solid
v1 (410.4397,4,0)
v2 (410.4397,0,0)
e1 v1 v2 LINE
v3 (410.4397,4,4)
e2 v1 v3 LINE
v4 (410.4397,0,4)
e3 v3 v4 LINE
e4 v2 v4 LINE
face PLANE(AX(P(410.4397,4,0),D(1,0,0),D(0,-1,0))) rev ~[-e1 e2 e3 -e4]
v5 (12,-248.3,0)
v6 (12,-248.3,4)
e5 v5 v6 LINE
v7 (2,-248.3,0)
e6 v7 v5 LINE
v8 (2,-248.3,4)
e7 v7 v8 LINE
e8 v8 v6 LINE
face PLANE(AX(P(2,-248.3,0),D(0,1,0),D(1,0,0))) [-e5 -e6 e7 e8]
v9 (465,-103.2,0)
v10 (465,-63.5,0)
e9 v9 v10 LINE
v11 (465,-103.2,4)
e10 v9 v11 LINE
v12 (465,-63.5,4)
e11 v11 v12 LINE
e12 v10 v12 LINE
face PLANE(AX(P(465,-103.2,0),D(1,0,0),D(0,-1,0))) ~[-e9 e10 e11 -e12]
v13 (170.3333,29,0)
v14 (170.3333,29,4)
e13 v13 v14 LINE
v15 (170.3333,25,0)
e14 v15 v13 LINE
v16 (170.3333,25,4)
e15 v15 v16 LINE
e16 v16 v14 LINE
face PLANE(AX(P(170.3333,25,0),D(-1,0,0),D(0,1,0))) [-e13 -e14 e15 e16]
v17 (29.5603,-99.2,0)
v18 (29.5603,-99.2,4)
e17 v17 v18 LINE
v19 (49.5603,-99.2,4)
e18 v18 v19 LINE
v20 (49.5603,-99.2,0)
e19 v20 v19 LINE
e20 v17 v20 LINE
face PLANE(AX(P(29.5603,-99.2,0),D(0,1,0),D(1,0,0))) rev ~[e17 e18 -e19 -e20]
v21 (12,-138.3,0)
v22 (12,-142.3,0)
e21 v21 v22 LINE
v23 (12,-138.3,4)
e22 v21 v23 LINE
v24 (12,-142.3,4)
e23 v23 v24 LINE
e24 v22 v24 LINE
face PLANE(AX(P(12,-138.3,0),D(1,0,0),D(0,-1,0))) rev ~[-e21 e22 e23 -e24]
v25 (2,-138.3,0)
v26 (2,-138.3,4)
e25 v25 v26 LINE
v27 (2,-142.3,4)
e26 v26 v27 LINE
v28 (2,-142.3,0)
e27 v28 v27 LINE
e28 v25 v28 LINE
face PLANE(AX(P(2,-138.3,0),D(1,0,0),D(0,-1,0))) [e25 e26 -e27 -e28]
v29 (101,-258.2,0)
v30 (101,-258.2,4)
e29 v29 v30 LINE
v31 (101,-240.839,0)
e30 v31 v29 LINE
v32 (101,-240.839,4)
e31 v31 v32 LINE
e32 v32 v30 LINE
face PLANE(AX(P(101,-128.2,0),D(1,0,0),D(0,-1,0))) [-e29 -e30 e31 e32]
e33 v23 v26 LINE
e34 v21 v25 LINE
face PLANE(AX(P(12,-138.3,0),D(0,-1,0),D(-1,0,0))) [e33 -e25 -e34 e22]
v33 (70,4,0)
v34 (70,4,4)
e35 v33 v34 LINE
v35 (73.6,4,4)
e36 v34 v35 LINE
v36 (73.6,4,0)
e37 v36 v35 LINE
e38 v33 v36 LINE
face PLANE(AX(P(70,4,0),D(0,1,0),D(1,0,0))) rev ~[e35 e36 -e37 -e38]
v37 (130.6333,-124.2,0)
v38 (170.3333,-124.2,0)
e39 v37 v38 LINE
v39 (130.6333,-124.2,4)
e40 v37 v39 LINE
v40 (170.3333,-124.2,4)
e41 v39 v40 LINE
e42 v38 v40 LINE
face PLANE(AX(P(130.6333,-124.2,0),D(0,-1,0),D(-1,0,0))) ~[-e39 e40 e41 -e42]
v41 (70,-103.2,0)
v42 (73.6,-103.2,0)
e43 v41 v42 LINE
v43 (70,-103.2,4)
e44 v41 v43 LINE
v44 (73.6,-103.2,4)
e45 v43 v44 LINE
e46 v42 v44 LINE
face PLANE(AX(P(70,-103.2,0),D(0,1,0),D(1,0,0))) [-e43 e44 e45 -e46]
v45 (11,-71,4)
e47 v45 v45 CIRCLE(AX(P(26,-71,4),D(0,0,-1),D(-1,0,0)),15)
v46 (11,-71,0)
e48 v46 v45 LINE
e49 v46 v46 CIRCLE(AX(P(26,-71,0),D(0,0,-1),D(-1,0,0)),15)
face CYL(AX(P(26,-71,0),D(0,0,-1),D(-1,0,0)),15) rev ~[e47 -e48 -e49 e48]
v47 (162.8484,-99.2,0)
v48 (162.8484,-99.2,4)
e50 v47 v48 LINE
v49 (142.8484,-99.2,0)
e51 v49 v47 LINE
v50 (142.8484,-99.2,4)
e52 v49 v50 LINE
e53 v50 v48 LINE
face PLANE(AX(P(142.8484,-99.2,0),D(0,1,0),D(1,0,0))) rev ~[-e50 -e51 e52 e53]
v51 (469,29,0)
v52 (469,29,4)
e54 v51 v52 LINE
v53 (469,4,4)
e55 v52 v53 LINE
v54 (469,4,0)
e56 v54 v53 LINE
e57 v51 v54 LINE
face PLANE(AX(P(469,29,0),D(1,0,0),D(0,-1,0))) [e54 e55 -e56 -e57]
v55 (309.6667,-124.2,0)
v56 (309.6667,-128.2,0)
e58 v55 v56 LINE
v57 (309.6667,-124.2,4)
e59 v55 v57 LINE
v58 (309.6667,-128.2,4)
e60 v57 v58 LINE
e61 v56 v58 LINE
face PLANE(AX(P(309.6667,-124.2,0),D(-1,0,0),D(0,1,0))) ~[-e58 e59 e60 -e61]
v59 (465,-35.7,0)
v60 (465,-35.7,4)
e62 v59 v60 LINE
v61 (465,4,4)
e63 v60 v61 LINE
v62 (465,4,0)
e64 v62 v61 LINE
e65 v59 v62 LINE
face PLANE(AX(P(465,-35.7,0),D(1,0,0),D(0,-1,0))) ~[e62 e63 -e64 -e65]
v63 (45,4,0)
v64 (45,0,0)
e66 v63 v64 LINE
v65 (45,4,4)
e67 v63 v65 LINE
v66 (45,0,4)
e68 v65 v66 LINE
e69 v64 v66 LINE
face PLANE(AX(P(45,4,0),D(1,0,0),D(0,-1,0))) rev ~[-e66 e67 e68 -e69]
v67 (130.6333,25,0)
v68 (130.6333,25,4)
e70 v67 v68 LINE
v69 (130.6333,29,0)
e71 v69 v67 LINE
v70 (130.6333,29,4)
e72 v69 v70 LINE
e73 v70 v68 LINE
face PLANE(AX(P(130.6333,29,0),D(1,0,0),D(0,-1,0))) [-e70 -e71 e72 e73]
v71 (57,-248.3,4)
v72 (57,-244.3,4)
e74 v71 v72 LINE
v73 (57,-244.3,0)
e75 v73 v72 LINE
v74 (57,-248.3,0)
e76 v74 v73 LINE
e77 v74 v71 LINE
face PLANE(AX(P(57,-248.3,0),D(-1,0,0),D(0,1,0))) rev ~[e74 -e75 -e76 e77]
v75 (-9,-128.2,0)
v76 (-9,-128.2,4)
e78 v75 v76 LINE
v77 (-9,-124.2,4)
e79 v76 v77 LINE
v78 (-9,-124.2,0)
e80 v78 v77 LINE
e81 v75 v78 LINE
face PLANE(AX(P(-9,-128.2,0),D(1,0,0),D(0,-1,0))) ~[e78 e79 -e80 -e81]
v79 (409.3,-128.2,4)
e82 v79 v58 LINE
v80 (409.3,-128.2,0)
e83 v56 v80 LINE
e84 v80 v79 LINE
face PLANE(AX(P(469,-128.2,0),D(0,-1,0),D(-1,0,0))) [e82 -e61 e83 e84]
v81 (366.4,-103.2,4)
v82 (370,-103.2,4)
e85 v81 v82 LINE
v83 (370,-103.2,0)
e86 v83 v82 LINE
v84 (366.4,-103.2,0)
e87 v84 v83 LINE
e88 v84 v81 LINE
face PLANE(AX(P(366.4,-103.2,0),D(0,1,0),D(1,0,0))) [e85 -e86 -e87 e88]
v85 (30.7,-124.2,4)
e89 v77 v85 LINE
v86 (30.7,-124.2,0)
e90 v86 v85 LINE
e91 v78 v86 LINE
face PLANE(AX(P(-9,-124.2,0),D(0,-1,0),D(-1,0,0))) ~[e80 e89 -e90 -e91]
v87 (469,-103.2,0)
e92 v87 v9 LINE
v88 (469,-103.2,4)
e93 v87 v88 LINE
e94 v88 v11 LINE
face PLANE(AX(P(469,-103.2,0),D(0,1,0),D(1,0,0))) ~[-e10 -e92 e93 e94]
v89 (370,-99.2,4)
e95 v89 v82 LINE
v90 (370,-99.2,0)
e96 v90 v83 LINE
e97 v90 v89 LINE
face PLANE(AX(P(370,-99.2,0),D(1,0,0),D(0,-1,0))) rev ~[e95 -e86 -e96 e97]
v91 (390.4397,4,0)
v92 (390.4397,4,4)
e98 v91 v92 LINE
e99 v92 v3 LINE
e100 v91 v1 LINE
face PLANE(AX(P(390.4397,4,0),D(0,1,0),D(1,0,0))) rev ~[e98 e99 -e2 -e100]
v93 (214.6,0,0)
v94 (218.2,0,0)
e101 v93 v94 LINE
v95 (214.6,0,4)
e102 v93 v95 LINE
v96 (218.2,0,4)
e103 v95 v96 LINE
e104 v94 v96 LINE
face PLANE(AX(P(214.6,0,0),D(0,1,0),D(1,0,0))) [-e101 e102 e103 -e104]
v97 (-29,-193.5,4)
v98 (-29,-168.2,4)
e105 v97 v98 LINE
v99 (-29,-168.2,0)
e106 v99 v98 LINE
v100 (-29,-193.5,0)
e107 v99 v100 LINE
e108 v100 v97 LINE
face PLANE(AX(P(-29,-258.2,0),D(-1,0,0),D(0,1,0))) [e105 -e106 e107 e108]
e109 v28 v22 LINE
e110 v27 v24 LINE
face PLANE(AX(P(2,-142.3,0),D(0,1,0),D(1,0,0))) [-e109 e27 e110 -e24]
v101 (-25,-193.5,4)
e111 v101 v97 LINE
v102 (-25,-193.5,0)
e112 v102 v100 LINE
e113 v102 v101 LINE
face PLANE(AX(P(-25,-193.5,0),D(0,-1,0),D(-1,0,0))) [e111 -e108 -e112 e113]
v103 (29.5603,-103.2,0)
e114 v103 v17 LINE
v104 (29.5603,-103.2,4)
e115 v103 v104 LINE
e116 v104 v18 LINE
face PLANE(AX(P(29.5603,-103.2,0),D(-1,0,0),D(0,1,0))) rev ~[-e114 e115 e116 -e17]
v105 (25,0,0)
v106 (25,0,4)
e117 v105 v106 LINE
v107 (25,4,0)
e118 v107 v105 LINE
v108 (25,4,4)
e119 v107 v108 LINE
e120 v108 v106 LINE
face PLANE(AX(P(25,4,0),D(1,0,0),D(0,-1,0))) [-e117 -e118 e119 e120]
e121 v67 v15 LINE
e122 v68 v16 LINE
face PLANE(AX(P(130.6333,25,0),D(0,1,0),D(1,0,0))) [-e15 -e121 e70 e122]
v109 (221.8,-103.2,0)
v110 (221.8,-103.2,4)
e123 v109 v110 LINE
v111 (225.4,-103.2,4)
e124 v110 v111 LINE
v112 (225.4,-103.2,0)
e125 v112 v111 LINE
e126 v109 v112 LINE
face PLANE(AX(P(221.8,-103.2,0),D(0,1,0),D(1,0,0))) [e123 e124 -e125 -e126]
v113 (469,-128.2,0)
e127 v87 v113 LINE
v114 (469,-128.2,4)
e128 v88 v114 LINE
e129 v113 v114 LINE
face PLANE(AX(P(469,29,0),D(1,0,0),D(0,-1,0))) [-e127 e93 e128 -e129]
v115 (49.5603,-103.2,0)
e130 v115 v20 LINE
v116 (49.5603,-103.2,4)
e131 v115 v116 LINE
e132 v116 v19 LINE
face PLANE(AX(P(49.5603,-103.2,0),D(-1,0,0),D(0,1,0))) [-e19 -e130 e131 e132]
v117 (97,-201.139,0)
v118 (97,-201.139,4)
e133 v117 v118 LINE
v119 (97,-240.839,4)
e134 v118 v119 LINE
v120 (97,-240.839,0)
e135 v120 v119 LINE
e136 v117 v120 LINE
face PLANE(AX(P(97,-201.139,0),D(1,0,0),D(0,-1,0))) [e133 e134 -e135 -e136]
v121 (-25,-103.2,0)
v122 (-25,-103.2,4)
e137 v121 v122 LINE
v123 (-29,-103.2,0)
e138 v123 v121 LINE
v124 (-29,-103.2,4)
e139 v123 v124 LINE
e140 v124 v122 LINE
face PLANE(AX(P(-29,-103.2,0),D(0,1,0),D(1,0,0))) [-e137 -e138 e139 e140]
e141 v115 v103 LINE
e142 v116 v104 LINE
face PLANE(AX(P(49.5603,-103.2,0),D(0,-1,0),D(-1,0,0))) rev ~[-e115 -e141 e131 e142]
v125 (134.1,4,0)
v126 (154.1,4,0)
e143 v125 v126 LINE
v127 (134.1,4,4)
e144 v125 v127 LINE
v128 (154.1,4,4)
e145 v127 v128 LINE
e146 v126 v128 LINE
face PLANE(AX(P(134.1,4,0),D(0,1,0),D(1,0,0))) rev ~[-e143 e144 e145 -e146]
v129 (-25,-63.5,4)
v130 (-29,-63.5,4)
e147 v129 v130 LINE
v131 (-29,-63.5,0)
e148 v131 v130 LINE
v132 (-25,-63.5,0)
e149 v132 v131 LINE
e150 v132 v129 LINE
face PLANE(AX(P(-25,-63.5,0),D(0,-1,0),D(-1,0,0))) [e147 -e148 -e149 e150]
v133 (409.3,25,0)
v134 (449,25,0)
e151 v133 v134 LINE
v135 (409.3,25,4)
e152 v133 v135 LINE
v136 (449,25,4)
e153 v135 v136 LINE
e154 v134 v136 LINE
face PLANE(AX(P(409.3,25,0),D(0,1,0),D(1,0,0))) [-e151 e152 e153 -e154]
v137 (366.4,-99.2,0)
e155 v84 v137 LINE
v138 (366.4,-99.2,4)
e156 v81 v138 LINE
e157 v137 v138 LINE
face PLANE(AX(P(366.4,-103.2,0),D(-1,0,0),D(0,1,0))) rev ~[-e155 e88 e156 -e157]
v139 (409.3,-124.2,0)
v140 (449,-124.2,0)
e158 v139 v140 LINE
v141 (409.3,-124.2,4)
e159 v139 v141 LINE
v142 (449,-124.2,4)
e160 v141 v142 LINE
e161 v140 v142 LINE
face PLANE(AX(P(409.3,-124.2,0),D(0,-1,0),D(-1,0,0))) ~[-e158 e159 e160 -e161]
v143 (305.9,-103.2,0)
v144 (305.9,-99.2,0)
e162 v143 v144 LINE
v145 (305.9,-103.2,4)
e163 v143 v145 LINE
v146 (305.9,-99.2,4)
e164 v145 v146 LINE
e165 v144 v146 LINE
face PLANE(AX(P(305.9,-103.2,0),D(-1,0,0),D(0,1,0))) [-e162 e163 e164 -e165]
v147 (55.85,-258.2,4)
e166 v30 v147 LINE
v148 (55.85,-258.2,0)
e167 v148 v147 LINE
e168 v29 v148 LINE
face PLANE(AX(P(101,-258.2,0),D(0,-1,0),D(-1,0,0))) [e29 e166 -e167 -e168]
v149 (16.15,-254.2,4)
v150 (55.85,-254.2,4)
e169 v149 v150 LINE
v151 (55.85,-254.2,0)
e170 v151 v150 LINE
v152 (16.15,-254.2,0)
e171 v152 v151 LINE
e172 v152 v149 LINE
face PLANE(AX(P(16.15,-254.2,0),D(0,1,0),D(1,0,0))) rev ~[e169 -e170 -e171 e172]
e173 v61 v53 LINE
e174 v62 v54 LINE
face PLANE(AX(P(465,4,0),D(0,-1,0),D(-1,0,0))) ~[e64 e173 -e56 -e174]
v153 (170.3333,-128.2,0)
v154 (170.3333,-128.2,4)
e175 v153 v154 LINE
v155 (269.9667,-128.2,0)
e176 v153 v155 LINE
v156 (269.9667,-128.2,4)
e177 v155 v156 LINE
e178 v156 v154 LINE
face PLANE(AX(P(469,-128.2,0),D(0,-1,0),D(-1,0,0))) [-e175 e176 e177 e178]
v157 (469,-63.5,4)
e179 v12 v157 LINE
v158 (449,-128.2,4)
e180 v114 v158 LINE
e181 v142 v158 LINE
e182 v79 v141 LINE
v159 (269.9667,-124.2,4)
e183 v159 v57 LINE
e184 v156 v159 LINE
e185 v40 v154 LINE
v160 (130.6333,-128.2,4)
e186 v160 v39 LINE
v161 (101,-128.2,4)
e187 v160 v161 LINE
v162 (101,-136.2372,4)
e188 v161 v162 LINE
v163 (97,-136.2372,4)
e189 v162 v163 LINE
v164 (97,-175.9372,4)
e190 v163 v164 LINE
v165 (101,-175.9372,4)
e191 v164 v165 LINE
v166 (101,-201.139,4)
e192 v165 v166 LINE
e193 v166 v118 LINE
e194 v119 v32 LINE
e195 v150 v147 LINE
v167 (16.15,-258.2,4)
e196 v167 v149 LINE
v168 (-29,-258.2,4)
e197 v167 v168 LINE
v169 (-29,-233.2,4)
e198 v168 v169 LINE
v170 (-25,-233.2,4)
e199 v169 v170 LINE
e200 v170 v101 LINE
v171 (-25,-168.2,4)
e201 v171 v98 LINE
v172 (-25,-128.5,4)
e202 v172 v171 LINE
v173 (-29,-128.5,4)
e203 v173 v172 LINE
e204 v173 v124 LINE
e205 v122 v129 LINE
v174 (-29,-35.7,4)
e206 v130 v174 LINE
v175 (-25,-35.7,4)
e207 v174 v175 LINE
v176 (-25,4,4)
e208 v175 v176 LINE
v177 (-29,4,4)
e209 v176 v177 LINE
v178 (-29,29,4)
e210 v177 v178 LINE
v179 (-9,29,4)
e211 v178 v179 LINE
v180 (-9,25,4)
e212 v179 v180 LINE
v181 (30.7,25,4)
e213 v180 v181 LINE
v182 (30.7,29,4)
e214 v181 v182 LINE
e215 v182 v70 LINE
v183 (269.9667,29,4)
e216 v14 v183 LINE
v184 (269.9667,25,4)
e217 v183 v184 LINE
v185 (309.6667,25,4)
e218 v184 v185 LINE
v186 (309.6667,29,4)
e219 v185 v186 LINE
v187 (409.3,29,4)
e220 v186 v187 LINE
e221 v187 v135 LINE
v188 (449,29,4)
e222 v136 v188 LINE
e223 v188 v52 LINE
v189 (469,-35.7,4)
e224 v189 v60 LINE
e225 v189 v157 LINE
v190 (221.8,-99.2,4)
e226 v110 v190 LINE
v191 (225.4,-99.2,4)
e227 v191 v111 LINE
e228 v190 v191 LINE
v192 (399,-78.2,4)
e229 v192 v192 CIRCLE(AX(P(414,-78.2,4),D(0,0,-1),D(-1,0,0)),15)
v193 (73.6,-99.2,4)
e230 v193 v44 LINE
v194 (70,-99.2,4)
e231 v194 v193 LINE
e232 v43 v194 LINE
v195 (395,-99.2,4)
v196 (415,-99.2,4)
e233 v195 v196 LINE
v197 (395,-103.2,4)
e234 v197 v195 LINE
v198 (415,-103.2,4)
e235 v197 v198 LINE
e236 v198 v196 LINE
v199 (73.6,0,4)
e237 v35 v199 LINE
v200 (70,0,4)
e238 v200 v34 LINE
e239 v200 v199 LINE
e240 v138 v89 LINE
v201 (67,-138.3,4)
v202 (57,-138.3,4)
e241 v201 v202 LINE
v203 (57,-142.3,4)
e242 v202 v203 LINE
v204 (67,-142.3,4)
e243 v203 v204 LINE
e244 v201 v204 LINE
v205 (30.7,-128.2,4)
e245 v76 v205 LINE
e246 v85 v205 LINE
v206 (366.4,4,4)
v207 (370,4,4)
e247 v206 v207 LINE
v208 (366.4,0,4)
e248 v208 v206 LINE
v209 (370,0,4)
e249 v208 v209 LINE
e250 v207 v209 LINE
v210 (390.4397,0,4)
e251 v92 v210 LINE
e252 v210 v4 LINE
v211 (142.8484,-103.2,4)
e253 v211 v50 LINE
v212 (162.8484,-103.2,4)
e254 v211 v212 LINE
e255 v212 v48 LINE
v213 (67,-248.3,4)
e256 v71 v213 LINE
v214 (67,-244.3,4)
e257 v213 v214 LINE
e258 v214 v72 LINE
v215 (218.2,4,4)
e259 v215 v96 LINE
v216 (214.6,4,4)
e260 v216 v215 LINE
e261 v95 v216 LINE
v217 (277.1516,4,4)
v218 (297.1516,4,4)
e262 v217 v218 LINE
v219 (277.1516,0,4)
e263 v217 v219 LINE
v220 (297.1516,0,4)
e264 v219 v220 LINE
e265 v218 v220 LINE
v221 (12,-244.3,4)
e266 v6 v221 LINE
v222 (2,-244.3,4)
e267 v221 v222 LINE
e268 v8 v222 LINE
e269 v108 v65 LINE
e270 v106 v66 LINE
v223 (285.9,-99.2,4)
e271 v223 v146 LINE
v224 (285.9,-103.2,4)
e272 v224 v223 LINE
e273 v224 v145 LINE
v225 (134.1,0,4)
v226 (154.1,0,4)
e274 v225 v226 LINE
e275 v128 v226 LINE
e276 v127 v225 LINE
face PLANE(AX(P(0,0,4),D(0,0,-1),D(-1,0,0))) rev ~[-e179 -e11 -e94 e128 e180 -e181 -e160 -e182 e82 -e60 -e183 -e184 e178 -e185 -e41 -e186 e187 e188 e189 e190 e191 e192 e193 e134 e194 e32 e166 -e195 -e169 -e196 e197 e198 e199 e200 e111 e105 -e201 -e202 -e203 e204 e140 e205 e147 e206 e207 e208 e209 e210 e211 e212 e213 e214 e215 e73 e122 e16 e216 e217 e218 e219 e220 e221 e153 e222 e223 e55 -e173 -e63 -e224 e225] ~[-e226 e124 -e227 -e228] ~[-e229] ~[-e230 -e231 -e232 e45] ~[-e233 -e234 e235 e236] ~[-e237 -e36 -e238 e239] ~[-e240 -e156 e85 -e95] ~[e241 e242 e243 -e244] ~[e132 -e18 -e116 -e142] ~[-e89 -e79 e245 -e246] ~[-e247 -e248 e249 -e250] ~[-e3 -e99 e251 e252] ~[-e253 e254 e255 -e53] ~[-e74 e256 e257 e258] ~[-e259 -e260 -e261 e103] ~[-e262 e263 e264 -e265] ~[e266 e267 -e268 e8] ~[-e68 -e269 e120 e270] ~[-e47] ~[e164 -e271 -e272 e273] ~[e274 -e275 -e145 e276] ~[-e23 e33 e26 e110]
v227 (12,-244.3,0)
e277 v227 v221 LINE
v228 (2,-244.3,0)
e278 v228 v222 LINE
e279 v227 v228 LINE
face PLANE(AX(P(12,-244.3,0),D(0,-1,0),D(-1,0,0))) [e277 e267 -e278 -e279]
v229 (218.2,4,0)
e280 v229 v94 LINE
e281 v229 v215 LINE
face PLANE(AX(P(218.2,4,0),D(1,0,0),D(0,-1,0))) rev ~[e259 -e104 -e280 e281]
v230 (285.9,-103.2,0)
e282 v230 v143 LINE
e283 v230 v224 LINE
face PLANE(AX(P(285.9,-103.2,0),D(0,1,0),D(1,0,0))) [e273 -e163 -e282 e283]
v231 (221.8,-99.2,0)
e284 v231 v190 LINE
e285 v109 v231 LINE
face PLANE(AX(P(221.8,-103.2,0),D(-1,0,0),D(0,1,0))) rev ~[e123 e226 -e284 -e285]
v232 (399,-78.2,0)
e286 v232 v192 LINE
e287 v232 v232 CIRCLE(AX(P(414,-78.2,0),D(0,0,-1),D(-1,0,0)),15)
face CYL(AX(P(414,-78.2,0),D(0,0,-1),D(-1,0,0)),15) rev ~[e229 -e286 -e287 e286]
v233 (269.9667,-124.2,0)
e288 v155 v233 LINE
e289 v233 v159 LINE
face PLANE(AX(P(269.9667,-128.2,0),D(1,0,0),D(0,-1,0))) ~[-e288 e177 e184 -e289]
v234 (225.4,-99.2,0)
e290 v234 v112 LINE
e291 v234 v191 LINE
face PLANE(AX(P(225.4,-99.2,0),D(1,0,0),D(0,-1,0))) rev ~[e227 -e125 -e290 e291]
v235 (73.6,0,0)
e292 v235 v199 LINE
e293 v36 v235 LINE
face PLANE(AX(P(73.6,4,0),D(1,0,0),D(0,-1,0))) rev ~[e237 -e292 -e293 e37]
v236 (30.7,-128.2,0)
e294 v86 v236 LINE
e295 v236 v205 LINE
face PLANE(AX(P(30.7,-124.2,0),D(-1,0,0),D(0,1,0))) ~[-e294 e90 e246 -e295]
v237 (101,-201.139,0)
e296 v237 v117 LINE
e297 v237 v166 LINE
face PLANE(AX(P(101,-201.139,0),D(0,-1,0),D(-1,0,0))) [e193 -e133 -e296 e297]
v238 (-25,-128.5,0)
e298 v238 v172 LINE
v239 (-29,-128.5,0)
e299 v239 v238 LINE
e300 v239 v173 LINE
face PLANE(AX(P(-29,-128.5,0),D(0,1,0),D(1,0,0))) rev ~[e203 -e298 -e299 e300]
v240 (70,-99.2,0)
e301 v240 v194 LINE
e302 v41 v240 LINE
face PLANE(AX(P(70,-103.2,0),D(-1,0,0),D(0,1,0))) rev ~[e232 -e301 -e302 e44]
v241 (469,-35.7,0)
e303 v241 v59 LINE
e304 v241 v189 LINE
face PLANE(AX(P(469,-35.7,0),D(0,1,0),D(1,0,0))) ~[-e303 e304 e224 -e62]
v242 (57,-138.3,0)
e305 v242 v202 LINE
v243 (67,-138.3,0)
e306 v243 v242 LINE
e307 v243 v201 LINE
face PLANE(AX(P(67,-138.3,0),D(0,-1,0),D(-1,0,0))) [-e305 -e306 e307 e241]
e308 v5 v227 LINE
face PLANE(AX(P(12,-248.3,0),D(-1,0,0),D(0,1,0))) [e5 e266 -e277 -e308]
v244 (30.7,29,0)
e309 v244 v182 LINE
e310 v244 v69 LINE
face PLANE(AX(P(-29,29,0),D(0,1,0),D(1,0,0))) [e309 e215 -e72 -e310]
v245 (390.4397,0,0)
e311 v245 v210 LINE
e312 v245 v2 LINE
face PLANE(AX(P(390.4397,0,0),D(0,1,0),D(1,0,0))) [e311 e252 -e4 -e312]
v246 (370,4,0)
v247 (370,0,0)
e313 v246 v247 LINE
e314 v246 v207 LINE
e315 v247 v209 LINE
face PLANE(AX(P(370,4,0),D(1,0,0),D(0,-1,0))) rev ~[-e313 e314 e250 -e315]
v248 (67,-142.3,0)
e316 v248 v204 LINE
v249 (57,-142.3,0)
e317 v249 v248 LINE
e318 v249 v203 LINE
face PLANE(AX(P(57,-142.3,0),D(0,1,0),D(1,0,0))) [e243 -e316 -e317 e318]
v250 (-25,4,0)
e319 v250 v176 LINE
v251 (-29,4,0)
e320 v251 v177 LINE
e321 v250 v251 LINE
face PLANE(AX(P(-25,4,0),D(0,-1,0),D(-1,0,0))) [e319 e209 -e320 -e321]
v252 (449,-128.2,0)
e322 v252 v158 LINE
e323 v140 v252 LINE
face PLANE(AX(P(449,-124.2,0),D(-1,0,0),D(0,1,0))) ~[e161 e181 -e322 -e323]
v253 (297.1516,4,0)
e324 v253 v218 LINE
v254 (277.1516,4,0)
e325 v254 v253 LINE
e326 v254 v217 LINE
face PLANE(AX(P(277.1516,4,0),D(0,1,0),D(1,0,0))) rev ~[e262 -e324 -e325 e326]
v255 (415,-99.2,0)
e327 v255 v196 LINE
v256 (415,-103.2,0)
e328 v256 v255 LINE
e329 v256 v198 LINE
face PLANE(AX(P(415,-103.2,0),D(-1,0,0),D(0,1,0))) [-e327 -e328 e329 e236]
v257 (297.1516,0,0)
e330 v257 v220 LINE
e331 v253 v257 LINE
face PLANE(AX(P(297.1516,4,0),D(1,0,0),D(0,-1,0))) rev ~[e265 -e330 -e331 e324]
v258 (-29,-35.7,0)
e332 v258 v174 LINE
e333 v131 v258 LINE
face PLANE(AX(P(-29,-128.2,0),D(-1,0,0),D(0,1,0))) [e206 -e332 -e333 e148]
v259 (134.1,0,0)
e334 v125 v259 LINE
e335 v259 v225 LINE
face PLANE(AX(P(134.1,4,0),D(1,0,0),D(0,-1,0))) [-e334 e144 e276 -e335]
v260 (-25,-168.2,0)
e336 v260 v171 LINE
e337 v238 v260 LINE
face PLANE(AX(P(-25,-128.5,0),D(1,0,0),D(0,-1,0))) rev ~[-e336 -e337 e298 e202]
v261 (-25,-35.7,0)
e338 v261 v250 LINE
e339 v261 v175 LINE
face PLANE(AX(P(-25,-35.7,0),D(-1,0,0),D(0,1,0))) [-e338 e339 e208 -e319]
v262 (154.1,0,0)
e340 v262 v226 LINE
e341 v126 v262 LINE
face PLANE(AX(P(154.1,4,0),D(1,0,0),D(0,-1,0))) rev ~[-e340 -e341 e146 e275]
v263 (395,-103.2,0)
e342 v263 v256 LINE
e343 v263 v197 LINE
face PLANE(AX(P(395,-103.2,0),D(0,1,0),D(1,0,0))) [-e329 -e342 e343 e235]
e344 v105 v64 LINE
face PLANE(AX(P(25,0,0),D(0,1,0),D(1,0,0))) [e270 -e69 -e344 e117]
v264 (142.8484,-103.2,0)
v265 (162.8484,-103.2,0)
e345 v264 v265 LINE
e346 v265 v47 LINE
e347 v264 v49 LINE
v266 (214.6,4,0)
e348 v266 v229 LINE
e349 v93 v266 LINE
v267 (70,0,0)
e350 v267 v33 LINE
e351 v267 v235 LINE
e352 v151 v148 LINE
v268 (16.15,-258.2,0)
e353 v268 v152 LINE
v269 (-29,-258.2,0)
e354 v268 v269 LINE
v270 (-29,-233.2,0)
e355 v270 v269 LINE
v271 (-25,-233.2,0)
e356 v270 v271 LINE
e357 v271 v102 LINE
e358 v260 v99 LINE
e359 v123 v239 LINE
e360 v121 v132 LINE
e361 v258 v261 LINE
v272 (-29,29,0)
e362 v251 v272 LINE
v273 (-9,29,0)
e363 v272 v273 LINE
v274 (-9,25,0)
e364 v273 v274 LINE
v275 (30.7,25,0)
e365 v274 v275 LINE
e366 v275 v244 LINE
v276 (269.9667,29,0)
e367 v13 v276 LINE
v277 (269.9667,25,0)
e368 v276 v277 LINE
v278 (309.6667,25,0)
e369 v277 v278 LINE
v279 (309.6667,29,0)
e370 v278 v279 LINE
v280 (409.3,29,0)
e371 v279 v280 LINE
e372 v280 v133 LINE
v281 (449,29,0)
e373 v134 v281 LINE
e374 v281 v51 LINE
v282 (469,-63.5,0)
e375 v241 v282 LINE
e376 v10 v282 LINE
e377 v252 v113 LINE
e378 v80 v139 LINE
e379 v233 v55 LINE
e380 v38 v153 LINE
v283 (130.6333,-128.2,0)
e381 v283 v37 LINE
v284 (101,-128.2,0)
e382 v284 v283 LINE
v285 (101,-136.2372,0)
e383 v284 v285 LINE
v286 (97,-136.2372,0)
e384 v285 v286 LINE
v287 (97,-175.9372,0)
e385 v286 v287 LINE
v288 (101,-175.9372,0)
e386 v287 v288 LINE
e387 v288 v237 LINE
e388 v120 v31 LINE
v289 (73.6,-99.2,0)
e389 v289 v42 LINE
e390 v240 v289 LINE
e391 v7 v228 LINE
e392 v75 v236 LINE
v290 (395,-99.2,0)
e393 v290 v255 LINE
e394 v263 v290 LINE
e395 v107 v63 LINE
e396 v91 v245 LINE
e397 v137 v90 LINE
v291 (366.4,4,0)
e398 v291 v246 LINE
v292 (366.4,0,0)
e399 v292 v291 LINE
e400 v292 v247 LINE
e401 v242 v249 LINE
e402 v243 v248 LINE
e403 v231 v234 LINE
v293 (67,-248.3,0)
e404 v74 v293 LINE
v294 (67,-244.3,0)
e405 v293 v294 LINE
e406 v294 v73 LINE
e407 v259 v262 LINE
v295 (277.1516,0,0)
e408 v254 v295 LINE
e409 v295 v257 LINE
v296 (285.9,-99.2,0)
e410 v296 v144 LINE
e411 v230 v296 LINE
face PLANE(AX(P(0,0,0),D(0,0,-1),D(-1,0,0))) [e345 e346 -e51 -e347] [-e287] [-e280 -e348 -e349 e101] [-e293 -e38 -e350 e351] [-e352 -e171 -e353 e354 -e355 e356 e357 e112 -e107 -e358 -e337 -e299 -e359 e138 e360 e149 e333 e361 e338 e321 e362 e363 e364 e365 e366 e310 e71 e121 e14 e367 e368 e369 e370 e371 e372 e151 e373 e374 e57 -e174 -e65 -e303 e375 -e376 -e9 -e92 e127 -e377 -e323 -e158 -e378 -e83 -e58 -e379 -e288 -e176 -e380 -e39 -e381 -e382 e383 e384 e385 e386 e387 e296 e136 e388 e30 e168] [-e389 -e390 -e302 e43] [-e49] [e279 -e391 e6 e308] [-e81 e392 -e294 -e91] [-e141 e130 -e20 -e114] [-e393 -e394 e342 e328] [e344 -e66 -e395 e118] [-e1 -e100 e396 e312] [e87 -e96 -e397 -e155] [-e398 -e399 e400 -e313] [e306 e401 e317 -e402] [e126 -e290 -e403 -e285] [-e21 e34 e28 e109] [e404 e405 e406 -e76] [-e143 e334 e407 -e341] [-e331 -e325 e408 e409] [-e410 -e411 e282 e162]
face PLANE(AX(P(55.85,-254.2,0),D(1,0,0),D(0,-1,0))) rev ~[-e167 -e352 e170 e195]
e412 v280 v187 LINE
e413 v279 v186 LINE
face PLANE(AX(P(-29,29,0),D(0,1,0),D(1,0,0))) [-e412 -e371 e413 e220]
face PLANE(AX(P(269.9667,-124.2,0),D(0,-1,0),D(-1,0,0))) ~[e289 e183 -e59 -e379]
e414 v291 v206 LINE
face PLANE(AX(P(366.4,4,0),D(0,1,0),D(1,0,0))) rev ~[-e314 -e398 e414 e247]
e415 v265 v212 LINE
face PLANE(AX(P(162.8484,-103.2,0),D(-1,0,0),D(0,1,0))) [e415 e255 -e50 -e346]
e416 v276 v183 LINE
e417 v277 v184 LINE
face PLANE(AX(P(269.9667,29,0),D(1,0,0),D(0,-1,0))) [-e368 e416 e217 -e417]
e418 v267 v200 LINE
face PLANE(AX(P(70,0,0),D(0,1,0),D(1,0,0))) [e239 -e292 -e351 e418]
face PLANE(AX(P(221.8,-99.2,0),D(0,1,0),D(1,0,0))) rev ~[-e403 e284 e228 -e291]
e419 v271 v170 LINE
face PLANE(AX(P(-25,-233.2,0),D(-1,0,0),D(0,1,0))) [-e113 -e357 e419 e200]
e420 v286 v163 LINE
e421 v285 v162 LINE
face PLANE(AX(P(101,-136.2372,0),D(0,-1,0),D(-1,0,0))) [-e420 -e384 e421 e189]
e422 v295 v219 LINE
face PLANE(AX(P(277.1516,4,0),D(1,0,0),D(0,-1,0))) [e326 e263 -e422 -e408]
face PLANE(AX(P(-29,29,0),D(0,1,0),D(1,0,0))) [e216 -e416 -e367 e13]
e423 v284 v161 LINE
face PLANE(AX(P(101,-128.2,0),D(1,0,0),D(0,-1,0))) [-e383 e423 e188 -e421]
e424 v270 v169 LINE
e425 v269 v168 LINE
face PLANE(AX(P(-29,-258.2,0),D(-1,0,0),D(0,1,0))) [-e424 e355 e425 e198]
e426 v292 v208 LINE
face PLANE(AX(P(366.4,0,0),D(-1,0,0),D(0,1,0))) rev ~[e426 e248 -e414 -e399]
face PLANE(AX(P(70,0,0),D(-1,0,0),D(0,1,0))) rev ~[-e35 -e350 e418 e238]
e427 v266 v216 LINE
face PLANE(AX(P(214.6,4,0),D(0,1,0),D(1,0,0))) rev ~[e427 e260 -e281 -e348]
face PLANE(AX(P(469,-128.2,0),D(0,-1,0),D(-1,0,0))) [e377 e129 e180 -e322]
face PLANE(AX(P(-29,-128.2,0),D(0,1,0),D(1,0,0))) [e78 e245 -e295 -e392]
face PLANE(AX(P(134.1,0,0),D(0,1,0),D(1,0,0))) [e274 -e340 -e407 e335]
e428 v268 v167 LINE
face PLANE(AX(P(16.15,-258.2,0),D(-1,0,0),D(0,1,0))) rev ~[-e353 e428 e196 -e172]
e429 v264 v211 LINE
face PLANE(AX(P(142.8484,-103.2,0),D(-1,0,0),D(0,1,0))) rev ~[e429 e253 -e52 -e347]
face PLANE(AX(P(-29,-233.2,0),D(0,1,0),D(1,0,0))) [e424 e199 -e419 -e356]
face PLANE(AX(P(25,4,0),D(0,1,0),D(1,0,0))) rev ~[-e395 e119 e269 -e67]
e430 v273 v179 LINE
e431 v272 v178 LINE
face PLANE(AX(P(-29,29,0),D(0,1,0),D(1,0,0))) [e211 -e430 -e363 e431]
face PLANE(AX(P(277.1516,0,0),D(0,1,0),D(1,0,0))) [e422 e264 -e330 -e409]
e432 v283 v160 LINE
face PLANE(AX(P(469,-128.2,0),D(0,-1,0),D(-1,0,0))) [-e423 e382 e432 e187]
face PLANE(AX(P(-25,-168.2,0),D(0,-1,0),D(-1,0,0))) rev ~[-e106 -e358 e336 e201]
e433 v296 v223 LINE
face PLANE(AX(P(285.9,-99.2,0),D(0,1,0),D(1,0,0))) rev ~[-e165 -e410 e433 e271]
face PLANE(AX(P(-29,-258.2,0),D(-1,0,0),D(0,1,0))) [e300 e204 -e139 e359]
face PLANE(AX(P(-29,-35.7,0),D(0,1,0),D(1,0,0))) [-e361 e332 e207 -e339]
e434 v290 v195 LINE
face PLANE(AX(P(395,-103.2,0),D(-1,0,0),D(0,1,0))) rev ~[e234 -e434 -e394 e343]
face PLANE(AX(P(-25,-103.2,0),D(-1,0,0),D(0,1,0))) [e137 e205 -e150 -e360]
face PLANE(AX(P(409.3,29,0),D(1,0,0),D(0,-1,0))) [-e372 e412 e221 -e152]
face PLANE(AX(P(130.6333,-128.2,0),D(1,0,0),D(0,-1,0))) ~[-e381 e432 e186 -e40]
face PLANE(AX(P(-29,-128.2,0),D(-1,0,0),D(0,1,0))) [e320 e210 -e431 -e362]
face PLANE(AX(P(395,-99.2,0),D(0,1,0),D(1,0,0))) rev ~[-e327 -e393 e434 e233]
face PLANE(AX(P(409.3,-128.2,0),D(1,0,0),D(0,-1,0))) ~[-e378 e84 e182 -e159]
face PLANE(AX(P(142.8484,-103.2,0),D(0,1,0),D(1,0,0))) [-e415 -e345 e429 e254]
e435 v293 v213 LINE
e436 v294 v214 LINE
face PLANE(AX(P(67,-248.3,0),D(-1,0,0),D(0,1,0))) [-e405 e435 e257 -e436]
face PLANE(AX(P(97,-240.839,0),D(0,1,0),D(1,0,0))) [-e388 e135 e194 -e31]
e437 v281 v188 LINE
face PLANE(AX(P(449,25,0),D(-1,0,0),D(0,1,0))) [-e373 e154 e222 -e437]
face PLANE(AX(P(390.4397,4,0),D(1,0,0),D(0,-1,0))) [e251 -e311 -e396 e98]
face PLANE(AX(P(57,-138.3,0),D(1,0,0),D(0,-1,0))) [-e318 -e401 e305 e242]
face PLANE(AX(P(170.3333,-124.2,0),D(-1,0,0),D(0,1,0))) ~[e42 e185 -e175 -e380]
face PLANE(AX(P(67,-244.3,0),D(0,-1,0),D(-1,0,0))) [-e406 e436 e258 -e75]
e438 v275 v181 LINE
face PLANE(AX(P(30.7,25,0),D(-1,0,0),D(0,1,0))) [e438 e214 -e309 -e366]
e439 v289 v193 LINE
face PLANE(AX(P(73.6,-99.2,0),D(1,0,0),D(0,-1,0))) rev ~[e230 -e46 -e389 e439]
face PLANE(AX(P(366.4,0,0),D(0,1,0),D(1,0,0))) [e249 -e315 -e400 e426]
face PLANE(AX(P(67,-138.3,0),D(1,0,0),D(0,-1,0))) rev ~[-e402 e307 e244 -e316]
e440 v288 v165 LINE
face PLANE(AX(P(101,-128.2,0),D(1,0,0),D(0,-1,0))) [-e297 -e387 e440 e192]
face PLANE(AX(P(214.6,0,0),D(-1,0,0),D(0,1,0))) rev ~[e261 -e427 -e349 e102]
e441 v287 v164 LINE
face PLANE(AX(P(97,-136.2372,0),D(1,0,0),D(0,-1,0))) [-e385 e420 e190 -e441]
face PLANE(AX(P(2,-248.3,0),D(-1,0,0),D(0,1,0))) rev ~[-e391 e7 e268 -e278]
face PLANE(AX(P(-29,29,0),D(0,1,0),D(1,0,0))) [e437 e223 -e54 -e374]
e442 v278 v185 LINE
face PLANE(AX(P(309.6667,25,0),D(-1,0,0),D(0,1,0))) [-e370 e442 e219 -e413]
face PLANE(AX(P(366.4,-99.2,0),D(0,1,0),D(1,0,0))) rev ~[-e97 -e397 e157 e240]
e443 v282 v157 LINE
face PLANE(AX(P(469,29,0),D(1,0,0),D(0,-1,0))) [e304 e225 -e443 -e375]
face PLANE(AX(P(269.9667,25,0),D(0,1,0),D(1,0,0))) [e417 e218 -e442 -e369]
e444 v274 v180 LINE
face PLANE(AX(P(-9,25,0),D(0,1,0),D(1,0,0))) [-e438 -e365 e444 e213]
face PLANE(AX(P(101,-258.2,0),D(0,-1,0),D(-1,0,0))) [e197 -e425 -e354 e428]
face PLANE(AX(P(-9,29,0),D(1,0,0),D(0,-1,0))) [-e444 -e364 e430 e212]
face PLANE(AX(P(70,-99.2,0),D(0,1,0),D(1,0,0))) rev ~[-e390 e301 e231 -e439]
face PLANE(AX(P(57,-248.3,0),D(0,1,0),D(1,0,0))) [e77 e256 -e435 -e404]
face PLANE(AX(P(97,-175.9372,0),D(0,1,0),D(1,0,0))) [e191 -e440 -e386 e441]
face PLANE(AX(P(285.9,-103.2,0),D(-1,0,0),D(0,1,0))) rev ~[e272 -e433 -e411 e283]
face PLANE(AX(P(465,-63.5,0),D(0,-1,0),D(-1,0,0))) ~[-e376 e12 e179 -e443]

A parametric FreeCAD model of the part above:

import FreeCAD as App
import Part
import Sketcher

V = App.Vector
Q = App.Units.Quantity


def add_polygon(sketch, points):
    """Adds a closed chain of lines whose ends are joined by coincident constraints."""
    first, n = sketch.GeometryCount, len(points)
    for a, b in zip(points, points[1:] + points[:1]):
        sketch.addGeometry(Part.LineSegment(App.Vector(*a, 0), App.Vector(*b, 0)), False)
    for i in range(n):
        sketch.addConstraint(Sketcher.Constraint("Coincident", first + i, 2, first + (i + 1) % n, 1))

doc = App.newDocument("Part")
body = doc.addObject("PartDesign::Body", "Body")

sketch1 = body.newObject("Sketcher::SketchObject", "Sketch")
sketch1.AttachmentSupport = (doc.getObject("XY_Plane"), [""])
sketch1.MapMode = "FlatFace"
add_polygon(sketch1, [(469, -128.2), (469, 29), (-29, 29), (-29, -128.2)])
add_polygon(sketch1, [(29.5603, -103.2), (29.5603, -99.2), (49.5603, -99.2), (49.5603, -103.2)])
add_polygon(sketch1, [(73.6, -103.2), (70, -103.2), (70, -99.2), (73.6, -99.2)])
add_polygon(sketch1, [(162.8484, -99.2), (162.8484, -103.2), (142.8484, -103.2), (142.8484, -99.2)])
add_polygon(sketch1, [(225.4, -103.2), (221.8, -103.2), (221.8, -99.2), (225.4, -99.2)])
add_polygon(sketch1, [(305.9, -99.2), (305.9, -103.2), (285.9, -103.2), (285.9, -99.2)])
add_polygon(sketch1, [(366.4, -99.2), (370, -99.2), (370, -103.2), (366.4, -103.2)])
add_polygon(sketch1, [(415, -103.2), (395, -103.2), (395, -99.2), (415, -99.2)])
add_polygon(sketch1, [(25, 0), (25, 4), (45, 4), (45, 0)])
add_polygon(sketch1, [(73.6, 0), (70, 0), (70, 4), (73.6, 4)])
add_polygon(sketch1, [(134.1, 0), (134.1, 4), (154.1, 4), (154.1, 0)])
add_polygon(sketch1, [(218.2, 0), (214.6, 0), (214.6, 4), (218.2, 4)])
add_polygon(sketch1, [(277.1516, 0), (277.1516, 4), (297.1516, 4), (297.1516, 0)])
add_polygon(sketch1, [(370, 0), (366.4, 0), (366.4, 4), (370, 4)])
add_polygon(sketch1, [(390.4397, 0), (390.4397, 4), (410.4397, 4), (410.4397, 0)])
sketch1.addConstraint([
    Sketcher.Constraint("Vertical", 0),
    Sketcher.Constraint("Horizontal", 1),
    Sketcher.Constraint("Vertical", 2),
    Sketcher.Constraint("Horizontal", 3),
    Sketcher.Constraint("Vertical", 4),
    Sketcher.Constraint("Horizontal", 5),
    Sketcher.Constraint("Vertical", 6),
    Sketcher.Constraint("Horizontal", 7),
    Sketcher.Constraint("Horizontal", 8),
    Sketcher.Constraint("Vertical", 9),
    Sketcher.Constraint("Horizontal", 10),
    Sketcher.Constraint("Vertical", 11),
    Sketcher.Constraint("Vertical", 12),
    Sketcher.Constraint("Horizontal", 13),
    Sketcher.Constraint("Vertical", 14),
    Sketcher.Constraint("Horizontal", 15),
    Sketcher.Constraint("Horizontal", 16),
    Sketcher.Constraint("Vertical", 17),
    Sketcher.Constraint("Horizontal", 18),
    Sketcher.Constraint("Vertical", 19),
    Sketcher.Constraint("Vertical", 20),
    Sketcher.Constraint("Horizontal", 21),
    Sketcher.Constraint("Vertical", 22),
    Sketcher.Constraint("Horizontal", 23),
    Sketcher.Constraint("Horizontal", 24),
    Sketcher.Constraint("Vertical", 25),
    Sketcher.Constraint("Horizontal", 26),
    Sketcher.Constraint("Vertical", 27),
    Sketcher.Constraint("Horizontal", 28),
    Sketcher.Constraint("Vertical", 29),
    Sketcher.Constraint("Horizontal", 30),
    Sketcher.Constraint("Vertical", 31),
    Sketcher.Constraint("Vertical", 32),
    Sketcher.Constraint("Horizontal", 33),
    Sketcher.Constraint("Vertical", 34),
    Sketcher.Constraint("Horizontal", 35),
    Sketcher.Constraint("Horizontal", 36),
    Sketcher.Constraint("Vertical", 37),
    Sketcher.Constraint("Horizontal", 38),
    Sketcher.Constraint("Vertical", 39),
    Sketcher.Constraint("Vertical", 40),
    Sketcher.Constraint("Horizontal", 41),
    Sketcher.Constraint("Vertical", 42),
    Sketcher.Constraint("Horizontal", 43),
    Sketcher.Constraint("Horizontal", 44),
    Sketcher.Constraint("Vertical", 45),
    Sketcher.Constraint("Horizontal", 46),
    Sketcher.Constraint("Vertical", 47),
    Sketcher.Constraint("Vertical", 48),
    Sketcher.Constraint("Horizontal", 49),
    Sketcher.Constraint("Vertical", 50),
    Sketcher.Constraint("Horizontal", 51),
    Sketcher.Constraint("Horizontal", 52),
    Sketcher.Constraint("Vertical", 53),
    Sketcher.Constraint("Horizontal", 54),
    Sketcher.Constraint("Vertical", 55),
    Sketcher.Constraint("Vertical", 56),
    Sketcher.Constraint("Horizontal", 57),
    Sketcher.Constraint("Vertical", 58),
    Sketcher.Constraint("Horizontal", 59),
    Sketcher.Constraint("PointOnObject", 34, 2, -1),
    Sketcher.Constraint("PointOnObject", 36, 2, -1),
    Sketcher.Constraint("PointOnObject", 42, 2, -1),
    Sketcher.Constraint("PointOnObject", 44, 2, -1),
    Sketcher.Constraint("PointOnObject", 50, 2, -1),
    Sketcher.Constraint("PointOnObject", 52, 2, -1),
    Sketcher.Constraint("PointOnObject", 58, 2, -1),
    Sketcher.Constraint("Horizontal", 7, 2, 8, 2),
    Sketcher.Constraint("Horizontal", 5, 2, 9, 2),
    Sketcher.Constraint("Horizontal", 11, 2, 12, 2),
    Sketcher.Constraint("Horizontal", 10, 2, 14, 2),
    Sketcher.Constraint("Horizontal", 13, 2, 16, 2),
    Sketcher.Constraint("Horizontal", 15, 2, 17, 2),
    Sketcher.Constraint("Horizontal", 19, 2, 20, 2),
    Sketcher.Constraint("Horizontal", 18, 2, 22, 2),
    Sketcher.Constraint("Horizontal", 23, 2, 24, 2),
    Sketcher.Constraint("Horizontal", 21, 2, 25, 2),
    Sketcher.Constraint("Horizontal", 26, 2, 28, 2),
    Sketcher.Constraint("Horizontal", 27, 2, 29, 2),
    Sketcher.Constraint("Horizontal", 33, 2, 37, 2),
    Sketcher.Constraint("Horizontal", 38, 2, 40, 2),
    Sketcher.Constraint("Horizontal", 41, 2, 45, 2),
    Sketcher.Constraint("Horizontal", 46, 2, 48, 2),
    Sketcher.Constraint("Horizontal", 49, 2, 53, 2),
    Sketcher.Constraint("Horizontal", 54, 2, 56, 2),
    Sketcher.Constraint("Vertical", 9, 2, 36, 2),
    Sketcher.Constraint("Vertical", 11, 2, 38, 2),
    Sketcher.Constraint("Vertical", 27, 2, 52, 2),
    Sketcher.Constraint("Vertical", 25, 2, 54, 2),
    Sketcher.Constraint("Equal", 7, 13),
    Sketcher.Constraint("Equal", 10, 16),
    Sketcher.Constraint("Equal", 15, 21),
    Sketcher.Constraint("Equal", 18, 24),
    Sketcher.Constraint("Equal", 23, 28),
    Sketcher.Constraint("Equal", 30, 33),
    Sketcher.Constraint("Equal", 35, 41),
    Sketcher.Constraint("Equal", 38, 44),
    Sketcher.Constraint("Equal", 43, 49),
    Sketcher.Constraint("Equal", 51, 57),
    Sketcher.Constraint("Equal", 31, 32),
    Sketcher.Constraint("DistanceX", 1, 2, 1, 1, Q("498 mm")),
    Sketcher.Constraint("DistanceX", 5, 1, 5, 2, Q("20 mm")),
    Sketcher.Constraint("DistanceY", 4, 1, 4, 2, Q("4 mm")),
    Sketcher.Constraint("DistanceX", 8, 2, 8, 1, Q("3.6 mm")),
    Sketcher.Constraint("DistanceY", 0, 1, 0, 2, Q("157.2 mm")),
    Sketcher.Constraint("DistanceX", -1, 1, 0, 2, Q("469 mm")),
    Sketcher.Constraint("DistanceY", -1, 1, 0, 2, Q("29 mm")),
    Sketcher.Constraint("DistanceX", -1, 1, 8, 2, Q("70 mm")),
    Sketcher.Constraint("DistanceX", -1, 1, 24, 2, Q("370 mm")),
    Sketcher.Constraint("DistanceX", -1, 1, 28, 2, Q("395 mm")),
    Sketcher.Constraint("DistanceX", -1, 1, 32, 2, Q("25 mm")),
    Sketcher.Constraint("DistanceY", 2, 2, 4, 2, Q("29 mm")),
    Sketcher.Constraint("DistanceX", -1, 1, 16, 2, Q("221.8 mm")),
    Sketcher.Constraint("DistanceX", -1, 1, 20, 2, Q("305.9 mm")),
    Sketcher.Constraint("DistanceX", -1, 1, 40, 2, Q("134.1 mm")),
    Sketcher.Constraint("DistanceX", -1, 1, 44, 2, Q("214.6 mm")),
    Sketcher.Constraint("DistanceX", 6, 2, 12, 2, Q("113.288 mm")),
    Sketcher.Constraint("DistanceX", -1, 1, 4, 2, Q("29.5603 mm")),
    Sketcher.Constraint("DistanceX", -1, 1, 48, 2, Q("277.1516 mm")),
    Sketcher.Constraint("DistanceX", -1, 1, 56, 2, Q("390.4397 mm")),
])
pad1 = body.newObject("PartDesign::Pad", "Pad")
pad1.Profile = sketch1
pad1.Length = 4

sketch2 = body.newObject("Sketcher::SketchObject", "Sketch001")
sketch2.AttachmentSupport = (doc.getObject("XY_Plane"), [""])
sketch2.MapMode = "FlatFace"
add_polygon(sketch2, [(409.3, 29), (449, 29), (449, 25), (409.3, 25)])
add_polygon(sketch2, [(269.9667, 29), (309.6667, 29), (309.6667, 25), (269.9667, 25)])
add_polygon(sketch2, [(-9, 25), (-9, 29), (30.7, 29), (30.7, 25)])
add_polygon(sketch2, [(130.6333, 29), (170.3333, 29), (170.3333, 25), (130.6333, 25)])
sketch2.addConstraint([
    Sketcher.Constraint("Horizontal", 0),
    Sketcher.Constraint("Vertical", 1),
    Sketcher.Constraint("Horizontal", 2),
    Sketcher.Constraint("Vertical", 3),
    Sketcher.Constraint("Horizontal", 4),
    Sketcher.Constraint("Vertical", 5),
    Sketcher.Constraint("Horizontal", 6),
    Sketcher.Constraint("Vertical", 7),
    Sketcher.Constraint("Vertical", 8),
    Sketcher.Constraint("Horizontal", 9),
    Sketcher.Constraint("Vertical", 10),
    Sketcher.Constraint("Horizontal", 11),
    Sketcher.Constraint("Horizontal", 12),
    Sketcher.Constraint("Vertical", 13),
    Sketcher.Constraint("Horizontal", 14),
    Sketcher.Constraint("Vertical", 15),
    Sketcher.Constraint("Horizontal", 3, 2, 4, 2),
    Sketcher.Constraint("Horizontal", 2, 2, 5, 2),
    Sketcher.Constraint("Horizontal", 7, 2, 8, 2),
    Sketcher.Constraint("Horizontal", 6, 2, 10, 2),
    Sketcher.Constraint("Horizontal", 9, 2, 12, 2),
    Sketcher.Constraint("Horizontal", 11, 2, 13, 2),
    Sketcher.Constraint("Equal", 2, 4),
    Sketcher.Constraint("Equal", 6, 9),
    Sketcher.Constraint("Equal", 11, 12),
    Sketcher.Constraint("DistanceY", 1, 2, 1, 1, Q("4 mm")),
    Sketcher.Constraint("DistanceX", 0, 1, 0, 2, Q("39.7 mm")),
    Sketcher.Constraint("DistanceX", -1, 1, 0, 2, Q("449 mm")),
    Sketcher.Constraint("DistanceY", -1, 1, 0, 2, Q("29 mm")),
    Sketcher.Constraint("DistanceX", 8, 2, -1, 1, Q("9 mm")),
    Sketcher.Constraint("DistanceX", -1, 1, 4, 2, Q("309.6667 mm")),
    Sketcher.Constraint("DistanceX", -1, 1, 12, 2, Q("170.3333 mm")),
])
pocket1 = body.newObject("PartDesign::Pocket", "Pocket")
pocket1.Profile = sketch2
pocket1.Length = 4
pocket1.Reversed = True
doc.recompute()

datumplane = body.newObject("PartDesign::Plane", "DatumPlane")
datumplane.AttachmentSupport = (doc.getObject("XZ_Plane"), [""])
datumplane.MapMode = "FlatFace"
datumplane.AttachmentOffset = App.Placement(V(0, 0, 49.6), App.Rotation())
mirrored = body.newObject("PartDesign::Mirrored", "Mirrored")
mirrored.Originals = [pocket1]
mirrored.MirrorPlane = (datumplane, [""])
body.Tip = mirrored

sketch3 = body.newObject("Sketcher::SketchObject", "Sketch002")
sketch3.AttachmentSupport = (doc.getObject("XY_Plane"), [""])
sketch3.MapMode = "FlatFace"
add_polygon(sketch3, [(-25, -103.2), (-29, -103.2), (-29, -63.5), (-25, -63.5)])
add_polygon(sketch3, [(-25, -35.7), (-29, -35.7), (-29, 4), (-25, 4)])
sketch3.addConstraint([
    Sketcher.Constraint("Horizontal", 0),
    Sketcher.Constraint("Vertical", 1),
    Sketcher.Constraint("Horizontal", 2),
    Sketcher.Constraint("Vertical", 3),
    Sketcher.Constraint("Horizontal", 4),
    Sketcher.Constraint("Vertical", 5),
    Sketcher.Constraint("Horizontal", 6),
    Sketcher.Constraint("Vertical", 7),
    Sketcher.Constraint("Vertical", 1, 2, 4, 2),
    Sketcher.Constraint("Vertical", 3, 2, 6, 2),
    Sketcher.Constraint("Equal", 3, 5),
    Sketcher.Constraint("DistanceX", 0, 2, 0, 1, Q("4 mm")),
    Sketcher.Constraint("DistanceY", 1, 1, 1, 2, Q("39.7 mm")),
    Sketcher.Constraint("DistanceY", -1, 1, 5, 2, Q("4 mm")),
    Sketcher.Constraint("DistanceX", 0, 2, -1, 1, Q("29 mm")),
    Sketcher.Constraint("DistanceY", 0, 2, -1, 1, Q("103.2 mm")),
])
pocket2 = body.newObject("PartDesign::Pocket", "Pocket001")
pocket2.Profile = sketch3
pocket2.Length = 4
pocket2.Reversed = True
doc.recompute()

datumplane2 = body.newObject("PartDesign::Plane", "DatumPlane001")
datumplane2.AttachmentSupport = (doc.getObject("YZ_Plane"), [""])
datumplane2.MapMode = "FlatFace"
datumplane2.AttachmentOffset = App.Placement(V(0, 0, 220), App.Rotation())
mirrored2 = body.newObject("PartDesign::Mirrored", "Mirrored001")
mirrored2.Originals = [pocket2]
mirrored2.MirrorPlane = (datumplane2, [""])
body.Tip = mirrored2

sketch4 = body.newObject("Sketcher::SketchObject", "Sketch003")
sketch4.AttachmentSupport = (doc.getObject("XY_Plane"), [""])
sketch4.MapMode = "FlatFace"
add_polygon(sketch4, [(-29, -258.2), (-29, -128.2), (101, -128.2), (101, -258.2)])
sketch4.addConstraint([
    Sketcher.Constraint("Vertical", 0),
    Sketcher.Constraint("Horizontal", 1),
    Sketcher.Constraint("Vertical", 2),
    Sketcher.Constraint("Horizontal", 3),
    Sketcher.Constraint("Equal", 3, 0),
    Sketcher.Constraint("DistanceX", 1, 1, 1, 2, Q("130 mm")),
    Sketcher.Constraint("DistanceX", 0, 2, -1, 1, Q("29 mm")),
    Sketcher.Constraint("DistanceY", 0, 2, -1, 1, Q("128.2 mm")),
])
pad2 = body.newObject("PartDesign::Pad", "Pad001")
pad2.Profile = sketch4
pad2.Length = 4

sketch5 = body.newObject("Sketcher::SketchObject", "Sketch004")
sketch5.AttachmentSupport = (doc.getObject("XY_Plane"), [""])
sketch5.MapMode = "FlatFace"
add_polygon(sketch5, [(-25, -233.2), (-29, -233.2), (-29, -193.5), (-25, -193.5)])
add_polygon(sketch5, [(-25, -168.2), (-29, -168.2), (-29, -128.5), (-25, -128.5)])
sketch5.addConstraint([
    Sketcher.Constraint("Horizontal", 0),
    Sketcher.Constraint("Vertical", 1),
    Sketcher.Constraint("Horizontal", 2),
    Sketcher.Constraint("Vertical", 3),
    Sketcher.Constraint("Horizontal", 4),
    Sketcher.Constraint("Vertical", 5),
    Sketcher.Constraint("Horizontal", 6),
    Sketcher.Constraint("Vertical", 7),
    Sketcher.Constraint("Vertical", 1, 2, 4, 2),
    Sketcher.Constraint("Vertical", 3, 2, 6, 2),
    Sketcher.Constraint("Equal", 3, 5),
    Sketcher.Constraint("DistanceX", 0, 2, 0, 1, Q("4 mm")),
    Sketcher.Constraint("DistanceY", 1, 1, 1, 2, Q("39.7 mm")),
    Sketcher.Constraint("DistanceX", 2, 2, -1, 1, Q("25 mm")),
    Sketcher.Constraint("DistanceY", 0, 2, 4, 2, Q("65 mm")),
    Sketcher.Constraint("DistanceY", 0, 2, -1, 1, Q("233.2 mm")),
])
pocket3 = body.newObject("PartDesign::Pocket", "Pocket002")
pocket3.Profile = sketch5
pocket3.Length = 4
pocket3.Reversed = True

sketch6 = body.newObject("Sketcher::SketchObject", "Sketch005")
sketch6.AttachmentSupport = (doc.getObject("XY_Plane"), [""])
sketch6.MapMode = "FlatFace"
add_polygon(sketch6, [(97, -136.2372), (101, -136.2372), (101, -175.9372), (97, -175.9372)])
add_polygon(sketch6, [(97, -201.139), (101, -201.139), (101, -240.839), (97, -240.839)])
add_polygon(sketch6, [(55.85, -254.2), (55.85, -258.2), (16.15, -258.2), (16.15, -254.2)])
sketch6.addConstraint([
    Sketcher.Constraint("Horizontal", 0),
    Sketcher.Constraint("Vertical", 1),
    Sketcher.Constraint("Horizontal", 2),
    Sketcher.Constraint("Vertical", 3),
    Sketcher.Constraint("Horizontal", 4),
    Sketcher.Constraint("Vertical", 5),
    Sketcher.Constraint("Horizontal", 6),
    Sketcher.Constraint("Vertical", 7),
    Sketcher.Constraint("Vertical", 8),
    Sketcher.Constraint("Horizontal", 9),
    Sketcher.Constraint("Vertical", 10),
    Sketcher.Constraint("Horizontal", 11),
    Sketcher.Constraint("Vertical", 1, 2, 4, 2),
    Sketcher.Constraint("Vertical", 3, 2, 6, 2),
    Sketcher.Constraint("Equal", 11, 1),
    Sketcher.Constraint("Equal", 3, 5),
    Sketcher.Constraint("Equal", 6, 8),
    Sketcher.Constraint("DistanceX", 0, 1, 0, 2, Q("4 mm")),
    Sketcher.Constraint("DistanceX", 9, 2, 9, 1, Q("39.7 mm")),
    Sketcher.Constraint("DistanceX", -1, 1, 0, 2, Q("101 mm")),
    Sketcher.Constraint("DistanceY", 8, 2, -1, 1, Q("258.2 mm")),
    Sketcher.Constraint("DistanceX", -1, 1, 8, 2, Q("55.85 mm")),
    Sketcher.Constraint("DistanceY", 4, 2, -1, 1, Q("201.139 mm")),
    Sketcher.Constraint("DistanceY", 0, 2, -1, 1, Q("136.2372 mm")),
])
pocket4 = body.newObject("PartDesign::Pocket", "Pocket003")
pocket4.Profile = sketch6
pocket4.Length = 4
pocket4.Reversed = True

sketch7 = body.newObject("Sketcher::SketchObject", "Sketch006")
sketch7.AttachmentSupport = (doc.getObject("XY_Plane"), [""])
sketch7.MapMode = "FlatFace"
sketch7.addGeometry([
    Part.Circle(V(414, -78.2, 0), V(0, 0, 1), 15),
    Part.Circle(V(26, -71, 0), V(0, 0, 1), 15),
], False)
sketch7.addConstraint([
    Sketcher.Constraint("Equal", 0, 1),
    Sketcher.Constraint("Diameter", 0, Q("30 mm")),
    Sketcher.Constraint("DistanceX", -1, 1, 0, 3, Q("414 mm")),
    Sketcher.Constraint("DistanceX", -1, 1, 1, 3, Q("26 mm")),
    Sketcher.Constraint("DistanceY", 1, 3, -1, 1, Q("71 mm")),
    Sketcher.Constraint("DistanceY", 0, 3, -1, 1, Q("78.2 mm")),
])
pocket5 = body.newObject("PartDesign::Pocket", "Pocket004")
pocket5.Profile = sketch7
pocket5.Length = 4
pocket5.Reversed = True

sketch8 = body.newObject("Sketcher::SketchObject", "Sketch007")
sketch8.AttachmentSupport = (doc.getObject("XY_Plane"), [""])
sketch8.MapMode = "FlatFace"
add_polygon(sketch8, [(2, -138.3), (12, -138.3), (12, -142.3), (2, -142.3)])
add_polygon(sketch8, [(57, -142.3), (57, -138.3), (67, -138.3), (67, -142.3)])
add_polygon(sketch8, [(12, -248.3), (2, -248.3), (2, -244.3), (12, -244.3)])
add_polygon(sketch8, [(67, -244.3), (67, -248.3), (57, -248.3), (57, -244.3)])
sketch8.addConstraint([
    Sketcher.Constraint("Horizontal", 0),
    Sketcher.Constraint("Vertical", 1),
    Sketcher.Constraint("Horizontal", 2),
    Sketcher.Constraint("Vertical", 3),
    Sketcher.Constraint("Vertical", 4),
    Sketcher.Constraint("Horizontal", 5),
    Sketcher.Constraint("Vertical", 6),
    Sketcher.Constraint("Horizontal", 7),
    Sketcher.Constraint("Horizontal", 8),
    Sketcher.Constraint("Vertical", 9),
    Sketcher.Constraint("Horizontal", 10),
    Sketcher.Constraint("Vertical", 11),
    Sketcher.Constraint("Vertical", 12),
    Sketcher.Constraint("Horizontal", 13),
    Sketcher.Constraint("Vertical", 14),
    Sketcher.Constraint("Horizontal", 15),
    Sketcher.Constraint("Horizontal", 3, 2, 4, 2),
    Sketcher.Constraint("Horizontal", 2, 2, 6, 2),
    Sketcher.Constraint("Horizontal", 11, 2, 12, 2),
    Sketcher.Constraint("Horizontal", 10, 2, 14, 2),
    Sketcher.Constraint("Vertical", 3, 2, 8, 2),
    Sketcher.Constraint("Vertical", 1, 2, 10, 2),
    Sketcher.Constraint("Vertical", 6, 2, 12, 2),
    Sketcher.Constraint("Vertical", 7, 2, 13, 2),
    Sketcher.Constraint("Equal", 2, 5),
    Sketcher.Constraint("Equal", 6, 9),
    Sketcher.Constraint("DistanceX", 0, 1, 0, 2, Q("10 mm")),
    Sketcher.Constraint("DistanceY", 1, 2, 1, 1, Q("4 mm")),
    Sketcher.Constraint("DistanceX", -1, 1, 0, 2, Q("12 mm")),
    Sketcher.Constraint("DistanceX", -1, 1, 4, 2, Q("57 mm")),
    Sketcher.Constraint("DistanceY", 8, 2, 2, 2, Q("106 mm")),
    Sketcher.Constraint("DistanceY", 0, 2, -1, 1, Q("138.3 mm")),
])
pocket6 = body.newObject("PartDesign::Pocket", "Pocket005")
pocket6.Profile = sketch8
pocket6.Length = 10
pocket6.Reversed = True

doc.recompute()
